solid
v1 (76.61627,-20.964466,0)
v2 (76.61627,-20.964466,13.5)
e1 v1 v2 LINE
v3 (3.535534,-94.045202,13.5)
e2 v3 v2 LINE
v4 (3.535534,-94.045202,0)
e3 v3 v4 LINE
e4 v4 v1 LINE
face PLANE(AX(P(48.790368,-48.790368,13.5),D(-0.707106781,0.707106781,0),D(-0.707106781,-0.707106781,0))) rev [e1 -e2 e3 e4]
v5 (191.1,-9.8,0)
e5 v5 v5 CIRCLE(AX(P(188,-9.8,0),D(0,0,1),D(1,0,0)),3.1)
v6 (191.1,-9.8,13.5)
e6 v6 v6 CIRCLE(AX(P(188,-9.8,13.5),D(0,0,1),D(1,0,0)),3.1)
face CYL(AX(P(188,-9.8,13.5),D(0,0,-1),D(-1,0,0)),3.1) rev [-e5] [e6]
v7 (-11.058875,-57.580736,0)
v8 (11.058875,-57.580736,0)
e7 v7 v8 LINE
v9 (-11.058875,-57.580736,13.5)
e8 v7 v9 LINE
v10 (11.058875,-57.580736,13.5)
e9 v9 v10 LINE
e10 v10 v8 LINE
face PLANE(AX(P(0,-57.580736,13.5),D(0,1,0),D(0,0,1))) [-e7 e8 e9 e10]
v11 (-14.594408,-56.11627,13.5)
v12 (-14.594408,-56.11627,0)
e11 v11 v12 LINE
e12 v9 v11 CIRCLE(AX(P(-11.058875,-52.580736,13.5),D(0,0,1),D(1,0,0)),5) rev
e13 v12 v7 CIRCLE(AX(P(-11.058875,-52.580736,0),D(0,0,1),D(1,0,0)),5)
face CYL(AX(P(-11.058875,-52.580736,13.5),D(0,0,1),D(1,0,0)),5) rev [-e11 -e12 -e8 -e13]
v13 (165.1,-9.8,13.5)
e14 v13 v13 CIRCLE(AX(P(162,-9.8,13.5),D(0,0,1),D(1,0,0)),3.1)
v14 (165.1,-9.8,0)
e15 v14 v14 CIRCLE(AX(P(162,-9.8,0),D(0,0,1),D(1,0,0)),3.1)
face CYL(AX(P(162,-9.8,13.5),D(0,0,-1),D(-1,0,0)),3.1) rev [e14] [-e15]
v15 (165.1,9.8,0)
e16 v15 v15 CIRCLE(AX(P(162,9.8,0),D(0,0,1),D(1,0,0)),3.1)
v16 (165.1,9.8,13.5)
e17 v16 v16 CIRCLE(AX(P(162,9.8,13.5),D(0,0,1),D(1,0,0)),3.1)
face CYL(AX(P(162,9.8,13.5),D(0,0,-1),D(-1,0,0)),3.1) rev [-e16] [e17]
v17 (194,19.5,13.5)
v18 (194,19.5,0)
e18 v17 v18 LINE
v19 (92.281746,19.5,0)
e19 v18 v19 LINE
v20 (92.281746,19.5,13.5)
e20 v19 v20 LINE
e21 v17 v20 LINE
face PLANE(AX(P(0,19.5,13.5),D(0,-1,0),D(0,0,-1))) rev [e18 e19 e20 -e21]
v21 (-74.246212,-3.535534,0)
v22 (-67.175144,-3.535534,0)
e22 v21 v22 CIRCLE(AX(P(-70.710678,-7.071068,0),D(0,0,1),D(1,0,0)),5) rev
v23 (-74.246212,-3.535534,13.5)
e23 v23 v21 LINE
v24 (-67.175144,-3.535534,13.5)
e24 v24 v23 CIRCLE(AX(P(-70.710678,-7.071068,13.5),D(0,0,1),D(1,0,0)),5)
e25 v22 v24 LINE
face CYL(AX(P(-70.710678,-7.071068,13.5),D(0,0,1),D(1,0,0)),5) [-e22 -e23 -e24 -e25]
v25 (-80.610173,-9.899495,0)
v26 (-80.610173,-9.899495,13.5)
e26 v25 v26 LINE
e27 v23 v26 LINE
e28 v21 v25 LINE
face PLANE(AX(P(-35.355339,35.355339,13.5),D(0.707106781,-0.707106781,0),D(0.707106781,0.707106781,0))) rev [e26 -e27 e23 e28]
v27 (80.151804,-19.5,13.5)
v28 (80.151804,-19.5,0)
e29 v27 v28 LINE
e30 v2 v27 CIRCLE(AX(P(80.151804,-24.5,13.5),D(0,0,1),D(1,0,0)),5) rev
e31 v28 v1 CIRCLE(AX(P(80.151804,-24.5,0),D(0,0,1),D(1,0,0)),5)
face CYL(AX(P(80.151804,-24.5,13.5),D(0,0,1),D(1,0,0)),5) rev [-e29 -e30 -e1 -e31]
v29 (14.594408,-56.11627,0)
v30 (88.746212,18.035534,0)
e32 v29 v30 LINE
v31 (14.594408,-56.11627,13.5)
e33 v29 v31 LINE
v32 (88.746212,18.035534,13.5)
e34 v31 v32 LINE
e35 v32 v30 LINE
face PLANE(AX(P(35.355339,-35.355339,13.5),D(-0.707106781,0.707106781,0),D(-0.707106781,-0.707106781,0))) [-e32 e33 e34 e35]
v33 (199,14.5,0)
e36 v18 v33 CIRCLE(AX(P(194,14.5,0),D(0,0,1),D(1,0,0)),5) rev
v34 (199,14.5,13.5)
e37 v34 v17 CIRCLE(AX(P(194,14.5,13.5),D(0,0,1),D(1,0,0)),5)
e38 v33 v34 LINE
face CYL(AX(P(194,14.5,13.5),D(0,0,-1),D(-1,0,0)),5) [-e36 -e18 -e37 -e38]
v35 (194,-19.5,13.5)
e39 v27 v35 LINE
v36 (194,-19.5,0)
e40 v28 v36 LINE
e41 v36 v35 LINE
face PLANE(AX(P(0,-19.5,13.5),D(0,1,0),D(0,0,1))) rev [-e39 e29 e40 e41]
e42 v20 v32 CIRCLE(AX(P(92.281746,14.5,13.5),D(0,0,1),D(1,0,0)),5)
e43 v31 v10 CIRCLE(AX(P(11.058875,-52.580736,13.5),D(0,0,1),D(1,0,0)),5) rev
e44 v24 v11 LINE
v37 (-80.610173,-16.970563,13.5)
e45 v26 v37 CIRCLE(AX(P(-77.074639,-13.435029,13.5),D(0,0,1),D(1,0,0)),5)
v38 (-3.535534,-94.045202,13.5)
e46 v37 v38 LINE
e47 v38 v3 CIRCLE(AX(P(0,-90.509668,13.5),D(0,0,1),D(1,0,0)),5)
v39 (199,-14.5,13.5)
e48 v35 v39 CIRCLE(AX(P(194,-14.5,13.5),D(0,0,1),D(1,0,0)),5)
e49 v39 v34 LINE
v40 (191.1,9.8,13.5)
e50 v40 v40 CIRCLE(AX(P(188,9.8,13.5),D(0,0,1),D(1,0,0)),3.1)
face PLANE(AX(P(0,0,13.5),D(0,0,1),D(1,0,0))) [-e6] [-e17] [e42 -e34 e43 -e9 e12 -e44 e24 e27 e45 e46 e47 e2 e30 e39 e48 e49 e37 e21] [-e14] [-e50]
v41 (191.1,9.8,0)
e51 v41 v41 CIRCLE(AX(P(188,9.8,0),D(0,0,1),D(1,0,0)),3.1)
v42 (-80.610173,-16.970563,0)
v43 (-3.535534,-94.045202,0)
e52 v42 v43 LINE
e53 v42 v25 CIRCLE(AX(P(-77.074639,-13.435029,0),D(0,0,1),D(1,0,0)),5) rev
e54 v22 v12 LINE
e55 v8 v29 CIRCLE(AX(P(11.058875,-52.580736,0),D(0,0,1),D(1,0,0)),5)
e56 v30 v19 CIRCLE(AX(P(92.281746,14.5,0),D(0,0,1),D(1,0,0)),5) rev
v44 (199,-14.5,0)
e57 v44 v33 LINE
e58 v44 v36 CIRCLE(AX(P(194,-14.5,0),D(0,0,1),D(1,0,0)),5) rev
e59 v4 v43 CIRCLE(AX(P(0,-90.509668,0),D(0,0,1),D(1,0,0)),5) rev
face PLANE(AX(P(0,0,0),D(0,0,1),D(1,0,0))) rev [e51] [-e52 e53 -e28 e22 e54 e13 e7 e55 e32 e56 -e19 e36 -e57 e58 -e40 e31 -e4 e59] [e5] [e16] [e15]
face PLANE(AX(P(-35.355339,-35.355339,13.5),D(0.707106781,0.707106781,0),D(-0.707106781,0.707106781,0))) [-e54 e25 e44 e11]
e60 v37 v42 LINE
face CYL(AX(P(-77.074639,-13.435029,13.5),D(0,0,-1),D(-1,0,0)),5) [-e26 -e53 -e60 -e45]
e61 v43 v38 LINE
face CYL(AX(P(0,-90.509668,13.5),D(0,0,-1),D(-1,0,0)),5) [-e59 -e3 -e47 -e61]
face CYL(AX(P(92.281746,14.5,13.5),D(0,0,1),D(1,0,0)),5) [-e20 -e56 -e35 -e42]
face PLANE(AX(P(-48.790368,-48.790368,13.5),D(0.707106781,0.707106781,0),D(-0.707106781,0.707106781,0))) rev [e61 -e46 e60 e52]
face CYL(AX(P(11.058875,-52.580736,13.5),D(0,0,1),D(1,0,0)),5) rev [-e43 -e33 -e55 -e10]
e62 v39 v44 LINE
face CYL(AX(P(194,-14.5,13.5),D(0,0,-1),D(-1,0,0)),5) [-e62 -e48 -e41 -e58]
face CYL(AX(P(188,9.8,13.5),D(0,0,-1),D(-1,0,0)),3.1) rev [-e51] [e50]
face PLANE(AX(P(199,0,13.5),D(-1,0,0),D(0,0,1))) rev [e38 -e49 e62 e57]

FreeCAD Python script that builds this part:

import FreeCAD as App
import Part
import Sketcher
Q = App.Units.Quantity


def edges_at(feature, points):
    """Names of the edges that pass closest to the given points."""
    edges = feature.Shape.Edges
    near = lambda p: min(range(len(edges)), key=lambda i: edges[i].distToShape(Part.Vertex(*p))[0])
    return sorted({f"Edge{near(p) + 1}" for p in points})


def add_polygon(sketch, points):
    """Adds a closed chain of lines whose ends are joined by coincident constraints."""
    first, n = sketch.GeometryCount, len(points)
    for a, b in zip(points, points[1:] + points[:1]):
        sketch.addGeometry(Part.LineSegment(App.Vector(*a, 0), App.Vector(*b, 0)), False)
    for i in range(n):
        sketch.addConstraint(Sketcher.Constraint("Coincident", first + i, 2, first + (i + 1) % n, 1))

doc = App.newDocument("Part")
params = doc.addObject("Spreadsheet::Sheet", "Params")
for row, (alias, value) in enumerate([
    ("sketch1_diameter", "6.2 mm"),
    ("sketch1_height", "39 mm"),
    ("sketch1_length", "19 mm"),
    ("sketch1_length2", "119 mm"),
    ("pad1_length", "13.5 mm"),
    ("fillet_radius", "5 mm"),
], start=1):
    params.set(f"A{row}", alias)
    params.set(f"B{row}", "=" + value)
    params.setAlias(f"B{row}", alias)

body = doc.addObject("PartDesign::Body", "Body")

# Sketch on XY plane
sketch1 = doc.addObject("Sketcher::SketchObject", "Sketch")
body.addObject(sketch1)
sketch1.AttachmentSupport = (doc.XY_Plane, [""])
sketch1.MapMode = "FlatFace"
add_polygon(sketch1, [(13.1, -57.6), (-13.1, -57.6), (-70.7, 0), (-84.1, -13.4), (0, -97.6), (78.1, -19.5), (199, -19.5), (199, 19.5), (90.2, 19.5)])  # lines 0-8
sketch1.addGeometry(Part.Circle(App.Vector(162, -9.8, 0), App.Vector(0, 0, 1), 3.1), False)  # 9
sketch1.addGeometry(Part.Circle(App.Vector(188, -9.8, 0), App.Vector(0, 0, 1), 3.1), False)  # 10
sketch1.addGeometry(Part.Circle(App.Vector(162, 9.8, 0), App.Vector(0, 0, 1), 3.1), False)  # 11
sketch1.addGeometry(Part.Circle(App.Vector(188, 9.8, 0), App.Vector(0, 0, 1), 3.1), False)  # 12
sketch1.addConstraint([
    Sketcher.Constraint("Horizontal", 0),
    Sketcher.Constraint("Horizontal", 5),
    Sketcher.Constraint("Vertical", 6),
    Sketcher.Constraint("Horizontal", 7),
    Sketcher.Constraint("Equal", 9, 10),
    Sketcher.Constraint("Equal", 10, 11),
    Sketcher.Constraint("Equal", 11, 12),
    Sketcher.Constraint("Symmetric", 9, 3, 11, 3, -1),
    Sketcher.Constraint("Symmetric", 10, 3, 12, 3, -1),
    Sketcher.Constraint("PointOnObject", 1, 2, -1),
    Sketcher.Constraint("PointOnObject", 3, 2, -2),
    Sketcher.Constraint("Perpendicular", 1, 2),
    Sketcher.Constraint("Perpendicular", 2, 3),
    Sketcher.Constraint("Perpendicular", 3, 4),
    Sketcher.Constraint("Parallel", 4, 8),
    Sketcher.Constraint("Horizontal", 9, 3, 10, 3),
    Sketcher.Constraint("Diameter", 9, Q("6.2 mm")),
    Sketcher.Constraint("DistanceY", 6, 1, 6, 2, Q("39 mm")),
    Sketcher.Constraint("Angle", 1, Q("135 deg")),
    Sketcher.Constraint("Distance", 2, Q("19 mm")),
    Sketcher.Constraint("Distance", 3, Q("119 mm")),
    Sketcher.Constraint("DistanceX", -1, 1, 9, 3, Q("162 mm")),
    Sketcher.Constraint("DistanceX", -1, 1, 10, 3, Q("188 mm")),
    Sketcher.Constraint("DistanceX", -1, 1, 5, 2, Q("199 mm")),
    Sketcher.Constraint("DistanceY", 3, 2, 0, 2, Q("40 mm")),
    Sketcher.Constraint("DistanceY", 9, 3, -1, 1, Q("9.8 mm")),
    Sketcher.Constraint("DistanceY", 4, 2, -1, 1, Q("19.5 mm")),
    Sketcher.Constraint("DistanceX", 7, 2, 7, 1, Q("108.789322 mm")),
])
sketch1.setExpression("Constraints[25]", "Params.sketch1_diameter")
sketch1.setExpression("Constraints[26]", "Params.sketch1_height")
sketch1.setExpression("Constraints[28]", "Params.sketch1_length")
sketch1.setExpression("Constraints[29]", "Params.sketch1_length2")
pad1 = doc.addObject("PartDesign::Pad", "Pad")
body.addObject(pad1)
pad1.Profile = sketch1
pad1.setExpression("Length", "Params.pad1_length")
doc.recompute()

fillet = doc.addObject("PartDesign::Fillet", "Fillet")
body.addObject(fillet)
fillet.Base = (pad1, edges_at(pad1, [
    (13.13, -57.581, 6.75),
    (90.211, 19.5, 6.75),
    (199, 19.5, 6.75),
    (199, -19.5, 6.75),
    (78.081, -19.5, 6.75),
    (0, -97.581, 6.75),
    (-84.146, -13.435, 6.75),
    (-70.711, 0, 6.75),
    (-13.13, -57.581, 6.75),
]))
fillet.setExpression("Radius", "Params.fillet_radius")

doc.recompute()
